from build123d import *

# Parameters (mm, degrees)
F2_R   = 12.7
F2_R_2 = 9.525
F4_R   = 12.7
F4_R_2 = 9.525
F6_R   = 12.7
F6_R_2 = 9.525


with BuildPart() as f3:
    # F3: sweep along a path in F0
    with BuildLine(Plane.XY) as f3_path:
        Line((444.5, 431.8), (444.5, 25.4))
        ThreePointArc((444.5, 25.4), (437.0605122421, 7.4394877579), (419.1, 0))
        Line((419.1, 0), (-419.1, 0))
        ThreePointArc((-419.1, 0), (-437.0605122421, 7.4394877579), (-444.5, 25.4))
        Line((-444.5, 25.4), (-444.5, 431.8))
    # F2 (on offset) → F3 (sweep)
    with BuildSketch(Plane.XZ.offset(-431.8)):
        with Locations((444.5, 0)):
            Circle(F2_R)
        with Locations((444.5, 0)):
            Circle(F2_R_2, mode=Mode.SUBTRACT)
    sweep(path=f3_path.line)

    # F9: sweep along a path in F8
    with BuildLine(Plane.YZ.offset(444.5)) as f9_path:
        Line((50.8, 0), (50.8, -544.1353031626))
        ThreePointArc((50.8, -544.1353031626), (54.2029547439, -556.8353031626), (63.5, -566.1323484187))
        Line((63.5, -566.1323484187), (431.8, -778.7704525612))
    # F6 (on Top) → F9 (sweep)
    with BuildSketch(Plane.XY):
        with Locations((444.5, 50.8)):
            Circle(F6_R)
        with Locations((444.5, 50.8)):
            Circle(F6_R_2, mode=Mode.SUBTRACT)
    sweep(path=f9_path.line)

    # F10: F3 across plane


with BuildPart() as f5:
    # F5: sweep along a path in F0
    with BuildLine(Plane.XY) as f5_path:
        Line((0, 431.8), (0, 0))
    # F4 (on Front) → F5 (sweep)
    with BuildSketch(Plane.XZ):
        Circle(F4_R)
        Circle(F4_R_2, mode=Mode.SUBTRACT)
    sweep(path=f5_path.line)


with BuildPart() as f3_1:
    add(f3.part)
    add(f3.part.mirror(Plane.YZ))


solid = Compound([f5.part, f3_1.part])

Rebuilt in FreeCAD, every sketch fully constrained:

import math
import FreeCAD as App
import Part
import Sketcher
Q = App.Units.Quantity

doc = App.newDocument("Part")
body = doc.addObject("PartDesign::Body", "Body")

# Sketch on XZ plane
sketch1 = body.newObject("Sketcher::SketchObject", "Sketch")
sketch1.AttachmentSupport = (doc.getObject("XZ_Plane"), [""])
sketch1.MapMode = "FlatFace"
sketch1.AttachmentOffset = App.Placement(App.Vector(0, 0, -17 * 25.4), App.Rotation())
sketch1.addGeometry([
    Part.Circle(App.Vector(444, 0, 0), App.Vector(0, 0, 1), 13),
    Part.Circle(App.Vector(444, 0, 0), App.Vector(0, 0, 1), 10),
], False)
sketch1.addConstraint([
    Sketcher.Constraint("Coincident", 1, 3, 0, 3),
    Sketcher.Constraint("PointOnObject", 0, 3, -1),
    Sketcher.Constraint("Diameter", 0, Q("1 in")),
    Sketcher.Constraint("Diameter", 1, Q("0.75 in")),
    Sketcher.Constraint("DistanceX", -1, 1, 0, 3, Q("17.5 in")),
])

# Sketch on XY plane
sketch2 = body.newObject("Sketcher::SketchObject", "Sketch001")
sketch2.AttachmentSupport = (doc.getObject("XY_Plane"), [""])
sketch2.MapMode = "FlatFace"
sketch2.addGeometry([
    Part.LineSegment(App.Vector(444, 432, 0), App.Vector(444, 25, 0)),  # 0
    Part.ArcOfCircle(Part.Circle(App.Vector(419, 25, 0), App.Vector(0, 0, 1), 25), math.radians(-90), math.radians(0)),  # 1
    Part.LineSegment(App.Vector(419, 0, 0), App.Vector(-419, 0, 0)),  # 2
    Part.ArcOfCircle(Part.Circle(App.Vector(-419, 25, 0), App.Vector(0, 0, 1), 25), math.radians(180), math.radians(270)),  # 3
    Part.LineSegment(App.Vector(-444, 25, 0), App.Vector(-444, 432, 0)),  # 4
], False)
sketch2.addConstraint([
    Sketcher.Constraint("Tangent", 0, 2, 1, 2),
    Sketcher.Constraint("Tangent", 1, 1, 2, 1),
    Sketcher.Constraint("Tangent", 2, 2, 3, 2),
    Sketcher.Constraint("Tangent", 3, 1, 4, 1),
    Sketcher.Constraint("Vertical", 0),
    Sketcher.Constraint("Horizontal", 2),
    Sketcher.Constraint("Vertical", 4),
    Sketcher.Constraint("Equal", 1, 3),
    Sketcher.Constraint("Symmetric", 1, 1, 2, 2, -1, 1),
    Sketcher.Constraint("Horizontal", 0, 1, 4, 2),
    Sketcher.Constraint("Radius", 1, Q("1 in")),
    Sketcher.Constraint("DistanceX", 2, 2, 2, 1, Q("33 in")),
    Sketcher.Constraint("DistanceY", 0, 2, 0, 1, Q("16 in")),
])
doc.recompute()

additivepipe = body.newObject("PartDesign::AdditivePipe", "AdditivePipe")
additivepipe.Profile = sketch1
additivepipe.Spine = (sketch2, ["Edge1", "Edge2", "Edge3", "Edge4", "Edge5"])

# Sketch on XY plane
sketch3 = body.newObject("Sketcher::SketchObject", "Sketch002")
sketch3.AttachmentSupport = (doc.getObject("XY_Plane"), [""])
sketch3.MapMode = "FlatFace"
sketch3.addGeometry([
    Part.Circle(App.Vector(444, 51, 0), App.Vector(0, 0, 1), 13),
    Part.Circle(App.Vector(444, 51, 0), App.Vector(0, 0, 1), 10),
], False)
sketch3.addConstraint([
    Sketcher.Constraint("Coincident", 1, 3, 0, 3),
    Sketcher.Constraint("Diameter", 0, Q("1 in")),
    Sketcher.Constraint("Diameter", 1, Q("0.75 in")),
    Sketcher.Constraint("DistanceY", -1, 1, 0, 3, Q("2 in")),
    Sketcher.Constraint("DistanceX", -1, 1, 0, 3, Q("17.5 in")),
])

# Sketch on YZ plane
sketch4 = body.newObject("Sketcher::SketchObject", "Sketch003")
sketch4.AttachmentSupport = (doc.getObject("YZ_Plane"), [""])
sketch4.MapMode = "FlatFace"
sketch4.AttachmentOffset = App.Placement(App.Vector(0, 0, 17.5 * 25.4), App.Rotation())
sketch4.addGeometry([
    Part.LineSegment(App.Vector(51, 0, 0), App.Vector(51, -544, 0)),
    Part.ArcOfCircle(Part.Circle(App.Vector(76, -544, 0), App.Vector(0, 0, 1), 25), math.radians(180), math.radians(240)),
    Part.LineSegment(App.Vector(64, -566, 0), App.Vector(432, -779, 0)),
], False)
sketch4.addConstraint([
    Sketcher.Constraint("Tangent", 0, 2, 1, 1),
    Sketcher.Constraint("Tangent", 1, 2, 2, 1),
    Sketcher.Constraint("Vertical", 0),
    Sketcher.Constraint("PointOnObject", 0, 1, -1),
    Sketcher.Constraint("Radius", 1, Q("1 in")),
    Sketcher.Constraint("DistanceX", -1, 1, 1, 3, Q("3 in")),
    Sketcher.Constraint("DistanceX", -1, 1, 2, 2, Q("17 in")),
    Sketcher.Constraint("Angle", 2, Q("-30 deg")),
    Sketcher.Constraint("DistanceY", 0, 2, 0, 1, Q("544.135303 mm")),
])
doc.recompute()

additivepipe2 = body.newObject("PartDesign::AdditivePipe", "AdditivePipe001")
additivepipe2.Profile = sketch3
additivepipe2.Spine = (sketch4, ["Edge1", "Edge2", "Edge3"])
body2 = doc.addObject("PartDesign::Body", "Body001")

# Sketch on XZ plane
sketch5 = body2.newObject("Sketcher::SketchObject", "Sketch004")
sketch5.AttachmentSupport = (doc.getObject("XZ_Plane001"), [""])
sketch5.MapMode = "FlatFace"
sketch5.addGeometry([
    Part.Circle(App.Vector(0, 0, 0), App.Vector(0, 0, 1), 13),
    Part.Circle(App.Vector(0, 0, 0), App.Vector(0, 0, 1), 10),
], False)
sketch5.addConstraint([
    Sketcher.Constraint("Coincident", 0, 3, -1, 1),
    Sketcher.Constraint("Coincident", 1, 3, -1, 1),
    Sketcher.Constraint("Diameter", 0, Q("1 in")),
    Sketcher.Constraint("Diameter", 1, Q("0.75 in")),
])

# Sketch on XY plane
sketch6 = body2.newObject("Sketcher::SketchObject", "Sketch005")
sketch6.AttachmentSupport = (doc.getObject("XY_Plane001"), [""])
sketch6.MapMode = "FlatFace"
sketch6.addGeometry(Part.LineSegment(App.Vector(0, 432, 0), App.Vector(0, 0, 0)), False)
sketch6.addConstraint([
    Sketcher.Constraint("Vertical", 0),
    Sketcher.Constraint("Coincident", 0, 2, -1, 1),
    Sketcher.Constraint("DistanceY", 0, 2, 0, 1, Q("17 in")),
])
doc.recompute()

additivepipe3 = body2.newObject("PartDesign::AdditivePipe", "AdditivePipe002")
additivepipe3.Profile = sketch5
additivepipe3.Spine = (sketch6, ["Edge1"])
body3 = doc.addObject("PartDesign::Body", "Body002")
doc.recompute()

body3.BaseFeature = body
doc.recompute()

mirroring = doc.addObject("Part::Mirroring", "Mirroring")
mirroring.Source = body
mirroring.Base = App.Vector(0, 0, 0)
mirroring.Normal = App.Vector(1, 0, 0)
body4 = doc.addObject("PartDesign::Body", "Body003")
body4.BaseFeature = mirroring
boolean = body3.newObject("PartDesign::Boolean", "Boolean")
boolean.Type = "Fuse"
boolean.addObjects([body4])
doc.recompute()
mirroring.Visibility = False

doc.recompute()
